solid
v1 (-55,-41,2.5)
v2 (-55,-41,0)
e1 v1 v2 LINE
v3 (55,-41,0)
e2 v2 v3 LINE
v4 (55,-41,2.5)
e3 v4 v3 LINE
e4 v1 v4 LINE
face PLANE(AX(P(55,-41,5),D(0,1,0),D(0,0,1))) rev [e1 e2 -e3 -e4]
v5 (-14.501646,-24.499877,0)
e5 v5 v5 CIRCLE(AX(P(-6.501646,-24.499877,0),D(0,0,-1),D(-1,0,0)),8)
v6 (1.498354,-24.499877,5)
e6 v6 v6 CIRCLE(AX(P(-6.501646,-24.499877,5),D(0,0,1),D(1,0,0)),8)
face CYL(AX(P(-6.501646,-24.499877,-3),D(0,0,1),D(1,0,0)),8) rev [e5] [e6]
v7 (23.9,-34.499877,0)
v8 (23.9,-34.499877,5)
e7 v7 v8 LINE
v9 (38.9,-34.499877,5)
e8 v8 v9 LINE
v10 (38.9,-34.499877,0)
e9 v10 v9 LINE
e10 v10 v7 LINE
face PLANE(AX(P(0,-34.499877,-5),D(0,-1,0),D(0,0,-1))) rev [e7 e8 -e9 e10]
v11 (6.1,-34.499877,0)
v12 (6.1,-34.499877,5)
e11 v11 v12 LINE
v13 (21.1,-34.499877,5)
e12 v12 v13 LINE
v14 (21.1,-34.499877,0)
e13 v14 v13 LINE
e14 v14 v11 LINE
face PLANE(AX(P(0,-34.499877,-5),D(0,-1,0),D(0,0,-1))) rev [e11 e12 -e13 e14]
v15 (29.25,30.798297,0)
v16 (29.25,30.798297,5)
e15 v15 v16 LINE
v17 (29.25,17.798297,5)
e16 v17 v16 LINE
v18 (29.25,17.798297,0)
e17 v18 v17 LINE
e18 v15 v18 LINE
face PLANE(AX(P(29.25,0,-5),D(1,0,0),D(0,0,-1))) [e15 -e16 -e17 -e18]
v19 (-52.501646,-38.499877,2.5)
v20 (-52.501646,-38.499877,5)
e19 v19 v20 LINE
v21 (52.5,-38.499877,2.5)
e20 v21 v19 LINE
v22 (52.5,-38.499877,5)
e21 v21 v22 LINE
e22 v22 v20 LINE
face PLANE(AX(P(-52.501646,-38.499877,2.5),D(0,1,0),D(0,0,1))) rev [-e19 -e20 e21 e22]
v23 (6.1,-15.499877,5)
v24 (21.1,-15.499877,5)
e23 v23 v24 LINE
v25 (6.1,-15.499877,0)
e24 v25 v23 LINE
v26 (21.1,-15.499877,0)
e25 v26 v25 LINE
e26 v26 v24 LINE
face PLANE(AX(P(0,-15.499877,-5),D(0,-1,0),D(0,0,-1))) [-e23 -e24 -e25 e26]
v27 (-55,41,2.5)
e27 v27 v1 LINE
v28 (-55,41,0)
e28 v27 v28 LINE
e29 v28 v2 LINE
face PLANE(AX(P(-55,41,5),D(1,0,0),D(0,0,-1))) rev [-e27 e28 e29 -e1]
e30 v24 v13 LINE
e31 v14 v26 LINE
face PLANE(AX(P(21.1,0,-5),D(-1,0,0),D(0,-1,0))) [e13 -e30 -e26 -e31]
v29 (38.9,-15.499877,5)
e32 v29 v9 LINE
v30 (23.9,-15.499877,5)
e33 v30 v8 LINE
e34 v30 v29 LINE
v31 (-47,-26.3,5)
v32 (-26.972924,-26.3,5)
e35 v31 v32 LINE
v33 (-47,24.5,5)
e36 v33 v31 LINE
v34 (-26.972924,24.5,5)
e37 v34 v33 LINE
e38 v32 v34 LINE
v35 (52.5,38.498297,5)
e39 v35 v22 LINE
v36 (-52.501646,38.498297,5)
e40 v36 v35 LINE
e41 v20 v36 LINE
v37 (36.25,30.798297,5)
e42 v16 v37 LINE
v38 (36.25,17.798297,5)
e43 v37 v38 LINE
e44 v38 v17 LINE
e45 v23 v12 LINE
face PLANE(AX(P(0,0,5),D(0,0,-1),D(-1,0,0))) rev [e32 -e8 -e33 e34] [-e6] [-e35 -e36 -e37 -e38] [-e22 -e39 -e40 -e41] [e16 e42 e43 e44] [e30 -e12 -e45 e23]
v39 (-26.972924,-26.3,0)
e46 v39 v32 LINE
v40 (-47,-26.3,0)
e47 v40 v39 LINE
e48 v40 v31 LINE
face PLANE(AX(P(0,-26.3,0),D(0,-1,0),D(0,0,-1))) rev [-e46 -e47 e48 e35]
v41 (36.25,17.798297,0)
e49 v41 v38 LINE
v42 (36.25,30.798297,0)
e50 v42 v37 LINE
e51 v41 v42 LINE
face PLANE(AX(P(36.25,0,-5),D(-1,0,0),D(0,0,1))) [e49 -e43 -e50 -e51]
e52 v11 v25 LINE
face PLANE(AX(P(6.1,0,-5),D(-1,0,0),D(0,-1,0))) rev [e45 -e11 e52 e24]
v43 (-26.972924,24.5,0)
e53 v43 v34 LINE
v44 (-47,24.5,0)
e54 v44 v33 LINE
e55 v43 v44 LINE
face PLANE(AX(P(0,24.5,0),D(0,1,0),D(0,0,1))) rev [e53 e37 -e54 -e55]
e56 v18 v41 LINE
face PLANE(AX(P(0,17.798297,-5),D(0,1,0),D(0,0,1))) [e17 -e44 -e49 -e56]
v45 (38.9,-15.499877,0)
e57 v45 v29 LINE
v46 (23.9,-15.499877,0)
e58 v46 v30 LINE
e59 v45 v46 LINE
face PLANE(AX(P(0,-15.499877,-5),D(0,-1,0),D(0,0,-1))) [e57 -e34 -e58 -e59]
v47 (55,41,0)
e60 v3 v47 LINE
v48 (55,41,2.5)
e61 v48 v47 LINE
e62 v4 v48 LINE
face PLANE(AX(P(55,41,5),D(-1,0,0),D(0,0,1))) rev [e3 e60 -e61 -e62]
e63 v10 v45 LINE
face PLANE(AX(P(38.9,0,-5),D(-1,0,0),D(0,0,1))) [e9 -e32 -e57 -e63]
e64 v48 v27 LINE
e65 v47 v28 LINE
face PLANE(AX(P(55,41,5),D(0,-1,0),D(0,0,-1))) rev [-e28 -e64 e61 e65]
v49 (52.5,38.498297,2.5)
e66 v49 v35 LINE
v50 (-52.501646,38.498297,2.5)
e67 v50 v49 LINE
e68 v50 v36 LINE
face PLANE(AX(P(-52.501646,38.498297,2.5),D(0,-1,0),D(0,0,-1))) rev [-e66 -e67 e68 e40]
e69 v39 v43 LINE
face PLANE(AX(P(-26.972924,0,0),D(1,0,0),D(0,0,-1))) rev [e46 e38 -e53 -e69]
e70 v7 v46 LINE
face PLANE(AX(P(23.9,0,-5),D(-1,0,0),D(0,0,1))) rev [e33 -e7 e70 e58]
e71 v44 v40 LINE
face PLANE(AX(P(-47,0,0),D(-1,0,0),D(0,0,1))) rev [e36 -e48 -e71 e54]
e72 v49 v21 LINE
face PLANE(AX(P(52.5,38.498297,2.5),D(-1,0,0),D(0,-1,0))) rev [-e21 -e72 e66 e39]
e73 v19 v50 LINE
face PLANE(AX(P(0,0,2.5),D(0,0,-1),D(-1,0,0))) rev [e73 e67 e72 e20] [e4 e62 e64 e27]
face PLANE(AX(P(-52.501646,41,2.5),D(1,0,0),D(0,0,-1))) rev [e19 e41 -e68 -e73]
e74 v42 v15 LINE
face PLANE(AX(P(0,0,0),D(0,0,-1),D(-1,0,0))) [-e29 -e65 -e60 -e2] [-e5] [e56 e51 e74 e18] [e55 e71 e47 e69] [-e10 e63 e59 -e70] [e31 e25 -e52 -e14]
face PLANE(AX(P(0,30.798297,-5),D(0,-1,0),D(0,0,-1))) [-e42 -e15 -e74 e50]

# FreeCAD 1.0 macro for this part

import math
import FreeCAD as App
import Part
import Sketcher


def add_polygon(sketch, points):
    """Adds a closed chain of lines whose ends are joined by coincident constraints."""
    first, n = sketch.GeometryCount, len(points)
    for a, b in zip(points, points[1:] + points[:1]):
        sketch.addGeometry(Part.LineSegment(App.Vector(*a, 0), App.Vector(*b, 0)), False)
    for i in range(n):
        sketch.addConstraint(Sketcher.Constraint("Coincident", first + i, 2, first + (i + 1) % n, 1))

doc = App.newDocument("Part")
body = doc.addObject("PartDesign::Body", "Body")

# Sketch on XY plane
sketch1 = body.newObject("Sketcher::SketchObject", "Sketch")
sketch1.AttachmentSupport = (doc.getObject("XY_Plane"), [""])
sketch1.MapMode = "FlatFace"
add_polygon(sketch1, [(-55, 41), (-55, -41), (55, -41), (55, 41)])  # lines 0-3
sketch1.addConstraint([
    Sketcher.Constraint("Vertical", 0),
    Sketcher.Constraint("Horizontal", 1),
    Sketcher.Constraint("Vertical", 2),
    Sketcher.Constraint("Horizontal", 3),
    Sketcher.Constraint("Symmetric", 0, 2, 2, 2, -1, 1),
    Sketcher.Constraint("DistanceX", 1, 1, 1, 2, 110.0),
    Sketcher.Constraint("DistanceY", 0, 2, 0, 1, 82.0),
])
pad1 = body.newObject("PartDesign::Pad", "Pad")
pad1.Profile = sketch1
pad1.Length = 5

# Sketch on XY plane
sketch2 = body.newObject("Sketcher::SketchObject", "Sketch001")
sketch2.AttachmentSupport = (doc.getObject("XY_Plane"), [""])
sketch2.MapMode = "FlatFace"
sketch2.AttachmentOffset = App.Placement(App.Vector(0, 0, 5), App.Rotation())
add_polygon(sketch2, [(-47, 24.5), (-47, -26.3), (-26.972924, -26.3), (-26.972924, 24.5)])  # lines 0-3
sketch2.addConstraint([
    Sketcher.Constraint("Vertical", 0),
    Sketcher.Constraint("Horizontal", 1),
    Sketcher.Constraint("Vertical", 2),
    Sketcher.Constraint("Horizontal", 3),
    Sketcher.Constraint("DistanceY", 0, 2, 0, 1, 50.8),
    Sketcher.Constraint("DistanceX", 0, 2, -1, 1, 47.0),
    Sketcher.Constraint("DistanceY", 0, 2, -1, 1, 26.3),
    Sketcher.Constraint("DistanceX", 1, 1, 1, 2, 20.027076),
])
pocket1 = body.newObject("PartDesign::Pocket", "Pocket")
pocket1.Profile = sketch2
pocket1.Length = 5

# Sketch on XY plane
sketch3 = body.newObject("Sketcher::SketchObject", "Sketch002")
sketch3.AttachmentSupport = (doc.getObject("XY_Plane"), [""])
sketch3.MapMode = "FlatFace"
sketch3.AttachmentOffset = App.Placement(App.Vector(0, 0, 5), App.Rotation())
add_polygon(sketch3, [(-55, 41), (-55, -41), (-52.501646, -41), (-52.501646, 41)])  # lines 0-3
sketch3.addConstraint([
    Sketcher.Constraint("Vertical", 0),
    Sketcher.Constraint("Horizontal", 1),
    Sketcher.Constraint("Vertical", 2),
    Sketcher.Constraint("Horizontal", 3),
    Sketcher.Constraint("DistanceY", 0, 2, 0, 1, 82.0),
    Sketcher.Constraint("DistanceX", 0, 2, -1, 1, 55.0),
    Sketcher.Constraint("DistanceY", 0, 2, -1, 1, 41.0),
    Sketcher.Constraint("DistanceX", 1, 1, 1, 2, 2.498354),
])
pocket2 = body.newObject("PartDesign::Pocket", "Pocket001")
pocket2.Profile = sketch3
pocket2.Length = 2.5

# Sketch on XY plane
sketch4 = body.newObject("Sketcher::SketchObject", "Sketch003")
sketch4.AttachmentSupport = (doc.getObject("XY_Plane"), [""])
sketch4.MapMode = "FlatFace"
sketch4.AttachmentOffset = App.Placement(App.Vector(0, 0, 5), App.Rotation())
add_polygon(sketch4, [(-52.501646, -38.499877), (-52.501646, -41), (55, -41), (55, -38.499877)])  # lines 0-3
sketch4.addConstraint([
    Sketcher.Constraint("Vertical", 0),
    Sketcher.Constraint("Horizontal", 1),
    Sketcher.Constraint("Vertical", 2),
    Sketcher.Constraint("Horizontal", 3),
    Sketcher.Constraint("DistanceY", 0, 2, -1, 1, 41.0),
    Sketcher.Constraint("DistanceX", -1, 1, 1, 2, 55.0),
    Sketcher.Constraint("DistanceX", 1, 1, 1, 2, 107.501646),
    Sketcher.Constraint("DistanceY", 0, 2, 0, 1, 2.500123),
])
pocket3 = body.newObject("PartDesign::Pocket", "Pocket002")
pocket3.Profile = sketch4
pocket3.Length = 2.5

# Sketch on XY plane
sketch5 = body.newObject("Sketcher::SketchObject", "Sketch004")
sketch5.AttachmentSupport = (doc.getObject("XY_Plane"), [""])
sketch5.MapMode = "FlatFace"
sketch5.AttachmentOffset = App.Placement(App.Vector(0, 0, 5), App.Rotation())
add_polygon(sketch5, [(-52.501646, 41), (-52.501646, 38.498297), (55, 38.498297), (55, 41)])  # lines 0-3
sketch5.addConstraint([
    Sketcher.Constraint("Vertical", 0),
    Sketcher.Constraint("Horizontal", 1),
    Sketcher.Constraint("Vertical", 2),
    Sketcher.Constraint("Horizontal", 3),
    Sketcher.Constraint("DistanceX", -1, 1, 1, 2, 55.0),
    Sketcher.Constraint("DistanceY", -1, 1, 2, 2, 41.0),
    Sketcher.Constraint("DistanceX", 1, 1, 1, 2, 107.501646),
    Sketcher.Constraint("DistanceY", 0, 2, 0, 1, 2.501703),
])
pocket4 = body.newObject("PartDesign::Pocket", "Pocket003")
pocket4.Profile = sketch5
pocket4.Length = 2.5

# Sketch on XY plane
sketch6 = body.newObject("Sketcher::SketchObject", "Sketch005")
sketch6.AttachmentSupport = (doc.getObject("XY_Plane"), [""])
sketch6.MapMode = "FlatFace"
sketch6.AttachmentOffset = App.Placement(App.Vector(0, 0, 5), App.Rotation())
add_polygon(sketch6, [(52.5, 38.498297), (52.5, -38.499877), (55, -38.499877), (55, 38.498297)])  # lines 0-3
sketch6.addConstraint([
    Sketcher.Constraint("Vertical", 0),
    Sketcher.Constraint("Horizontal", 1),
    Sketcher.Constraint("Vertical", 2),
    Sketcher.Constraint("Horizontal", 3),
    Sketcher.Constraint("DistanceX", 1, 1, 1, 2, 2.5),
    Sketcher.Constraint("DistanceX", -1, 1, 1, 2, 55.0),
    Sketcher.Constraint("DistanceY", 0, 2, 0, 1, 76.998174),
    Sketcher.Constraint("DistanceY", 0, 2, -1, 1, 38.499877),
])
pocket5 = body.newObject("PartDesign::Pocket", "Pocket004")
pocket5.Profile = sketch6
pocket5.Length = 2.5

# Sketch on XY plane
sketch7 = body.newObject("Sketcher::SketchObject", "Sketch006")
sketch7.AttachmentSupport = (doc.getObject("XY_Plane"), [""])
sketch7.MapMode = "FlatFace"
sketch7.AttachmentOffset = App.Placement(App.Vector(0, 0, 5), App.Rotation())
add_polygon(sketch7, [(6.1, -34.499877), (21.1, -34.499877), (21.1, -15.499877), (6.1, -15.499877)])  # lines 0-3
sketch7.addConstraint([
    Sketcher.Constraint("Horizontal", 0),
    Sketcher.Constraint("Vertical", 1),
    Sketcher.Constraint("Horizontal", 2),
    Sketcher.Constraint("Vertical", 3),
    Sketcher.Constraint("DistanceX", 0, 1, 0, 2, 15.0),
    Sketcher.Constraint("DistanceY", 1, 1, 1, 2, 19.0),
    Sketcher.Constraint("DistanceX", -1, 1, 0, 2, 21.1),
    Sketcher.Constraint("DistanceY", 0, 2, -1, 1, 34.499877),
])
pocket6 = body.newObject("PartDesign::Pocket", "Pocket005")
pocket6.Profile = sketch7
pocket6.Length = 10

# Sketch on XY plane
sketch8 = body.newObject("Sketcher::SketchObject", "Sketch007")
sketch8.AttachmentSupport = (doc.getObject("XY_Plane"), [""])
sketch8.MapMode = "FlatFace"
sketch8.AttachmentOffset = App.Placement(App.Vector(0, 0, 5), App.Rotation())
add_polygon(sketch8, [(38.9, -15.499877), (23.9, -15.499877), (23.9, -34.499877), (38.9, -34.499877)])  # lines 0-3
sketch8.addConstraint([
    Sketcher.Constraint("Horizontal", 0),
    Sketcher.Constraint("Vertical", 1),
    Sketcher.Constraint("Horizontal", 2),
    Sketcher.Constraint("Vertical", 3),
    Sketcher.Constraint("DistanceX", 0, 2, 0, 1, 15.0),
    Sketcher.Constraint("DistanceY", 1, 2, 1, 1, 19.0),
    Sketcher.Constraint("DistanceX", -1, 1, 0, 2, 23.9),
    Sketcher.Constraint("DistanceY", 0, 2, -1, 1, 15.499877),
])
pocket7 = body.newObject("PartDesign::Pocket", "Pocket006")
pocket7.Profile = sketch8
pocket7.Length = 10

# Sketch on XY plane
sketch9 = body.newObject("Sketcher::SketchObject", "Sketch008")
sketch9.AttachmentSupport = (doc.getObject("XY_Plane"), [""])
sketch9.MapMode = "FlatFace"
sketch9.AttachmentOffset = App.Placement(App.Vector(0, 0, 5), App.Rotation())
sketch9.addGeometry([
    Part.ArcOfCircle(Part.Circle(App.Vector(-6.501646, -24.499877, 0), App.Vector(0, 0, 1), 8), math.radians(0), math.radians(180)),
    Part.ArcOfCircle(Part.Circle(App.Vector(-6.501646, -24.499877, 0), App.Vector(0, 0, 1), 8), math.radians(180), math.radians(270)),
    Part.ArcOfCircle(Part.Circle(App.Vector(-6.501646, -24.499877, 0), App.Vector(0, 0, 1), 8), math.radians(-90), math.radians(0)),
], False)
sketch9.addConstraint([
    Sketcher.Constraint("Tangent", 0, 2, 1, 1),
    Sketcher.Constraint("Tangent", 1, 2, 2, 1),
    Sketcher.Constraint("Tangent", 2, 2, 0, 1),
    Sketcher.Constraint("Horizontal", 2, 3, 0, 2),
    Sketcher.Constraint("Horizontal", 0, 2, 2, 2),
    Sketcher.Constraint("Vertical", 2, 3, 1, 2),
    Sketcher.Constraint("Radius", 0, 8.0),
    Sketcher.Constraint("DistanceX", 0, 3, -1, 1, 6.501646),
    Sketcher.Constraint("DistanceY", 0, 3, -1, 1, 24.499877),
])
pocket8 = body.newObject("PartDesign::Pocket", "Pocket007")
pocket8.Profile = sketch9
pocket8.Length = 8

# Sketch on XY plane
sketch10 = body.newObject("Sketcher::SketchObject", "Sketch009")
sketch10.AttachmentSupport = (doc.getObject("XY_Plane"), [""])
sketch10.MapMode = "FlatFace"
sketch10.AttachmentOffset = App.Placement(App.Vector(0, 0, 5), App.Rotation())
add_polygon(sketch10, [(29.25, 30.798297), (29.25, 17.798297), (36.25, 17.798297), (36.25, 30.798297)])  # lines 0-3
sketch10.addConstraint([
    Sketcher.Constraint("Vertical", 0),
    Sketcher.Constraint("Horizontal", 1),
    Sketcher.Constraint("Vertical", 2),
    Sketcher.Constraint("Horizontal", 3),
    Sketcher.Constraint("DistanceX", 1, 1, 1, 2, 7.0),
    Sketcher.Constraint("DistanceY", 0, 2, 0, 1, 13.0),
    Sketcher.Constraint("DistanceX", -1, 1, 0, 2, 29.25),
    Sketcher.Constraint("DistanceY", -1, 1, 0, 2, 17.798297),
])
pocket9 = body.newObject("PartDesign::Pocket", "Pocket008")
pocket9.Profile = sketch10
pocket9.Length = 10

doc.recompute()
